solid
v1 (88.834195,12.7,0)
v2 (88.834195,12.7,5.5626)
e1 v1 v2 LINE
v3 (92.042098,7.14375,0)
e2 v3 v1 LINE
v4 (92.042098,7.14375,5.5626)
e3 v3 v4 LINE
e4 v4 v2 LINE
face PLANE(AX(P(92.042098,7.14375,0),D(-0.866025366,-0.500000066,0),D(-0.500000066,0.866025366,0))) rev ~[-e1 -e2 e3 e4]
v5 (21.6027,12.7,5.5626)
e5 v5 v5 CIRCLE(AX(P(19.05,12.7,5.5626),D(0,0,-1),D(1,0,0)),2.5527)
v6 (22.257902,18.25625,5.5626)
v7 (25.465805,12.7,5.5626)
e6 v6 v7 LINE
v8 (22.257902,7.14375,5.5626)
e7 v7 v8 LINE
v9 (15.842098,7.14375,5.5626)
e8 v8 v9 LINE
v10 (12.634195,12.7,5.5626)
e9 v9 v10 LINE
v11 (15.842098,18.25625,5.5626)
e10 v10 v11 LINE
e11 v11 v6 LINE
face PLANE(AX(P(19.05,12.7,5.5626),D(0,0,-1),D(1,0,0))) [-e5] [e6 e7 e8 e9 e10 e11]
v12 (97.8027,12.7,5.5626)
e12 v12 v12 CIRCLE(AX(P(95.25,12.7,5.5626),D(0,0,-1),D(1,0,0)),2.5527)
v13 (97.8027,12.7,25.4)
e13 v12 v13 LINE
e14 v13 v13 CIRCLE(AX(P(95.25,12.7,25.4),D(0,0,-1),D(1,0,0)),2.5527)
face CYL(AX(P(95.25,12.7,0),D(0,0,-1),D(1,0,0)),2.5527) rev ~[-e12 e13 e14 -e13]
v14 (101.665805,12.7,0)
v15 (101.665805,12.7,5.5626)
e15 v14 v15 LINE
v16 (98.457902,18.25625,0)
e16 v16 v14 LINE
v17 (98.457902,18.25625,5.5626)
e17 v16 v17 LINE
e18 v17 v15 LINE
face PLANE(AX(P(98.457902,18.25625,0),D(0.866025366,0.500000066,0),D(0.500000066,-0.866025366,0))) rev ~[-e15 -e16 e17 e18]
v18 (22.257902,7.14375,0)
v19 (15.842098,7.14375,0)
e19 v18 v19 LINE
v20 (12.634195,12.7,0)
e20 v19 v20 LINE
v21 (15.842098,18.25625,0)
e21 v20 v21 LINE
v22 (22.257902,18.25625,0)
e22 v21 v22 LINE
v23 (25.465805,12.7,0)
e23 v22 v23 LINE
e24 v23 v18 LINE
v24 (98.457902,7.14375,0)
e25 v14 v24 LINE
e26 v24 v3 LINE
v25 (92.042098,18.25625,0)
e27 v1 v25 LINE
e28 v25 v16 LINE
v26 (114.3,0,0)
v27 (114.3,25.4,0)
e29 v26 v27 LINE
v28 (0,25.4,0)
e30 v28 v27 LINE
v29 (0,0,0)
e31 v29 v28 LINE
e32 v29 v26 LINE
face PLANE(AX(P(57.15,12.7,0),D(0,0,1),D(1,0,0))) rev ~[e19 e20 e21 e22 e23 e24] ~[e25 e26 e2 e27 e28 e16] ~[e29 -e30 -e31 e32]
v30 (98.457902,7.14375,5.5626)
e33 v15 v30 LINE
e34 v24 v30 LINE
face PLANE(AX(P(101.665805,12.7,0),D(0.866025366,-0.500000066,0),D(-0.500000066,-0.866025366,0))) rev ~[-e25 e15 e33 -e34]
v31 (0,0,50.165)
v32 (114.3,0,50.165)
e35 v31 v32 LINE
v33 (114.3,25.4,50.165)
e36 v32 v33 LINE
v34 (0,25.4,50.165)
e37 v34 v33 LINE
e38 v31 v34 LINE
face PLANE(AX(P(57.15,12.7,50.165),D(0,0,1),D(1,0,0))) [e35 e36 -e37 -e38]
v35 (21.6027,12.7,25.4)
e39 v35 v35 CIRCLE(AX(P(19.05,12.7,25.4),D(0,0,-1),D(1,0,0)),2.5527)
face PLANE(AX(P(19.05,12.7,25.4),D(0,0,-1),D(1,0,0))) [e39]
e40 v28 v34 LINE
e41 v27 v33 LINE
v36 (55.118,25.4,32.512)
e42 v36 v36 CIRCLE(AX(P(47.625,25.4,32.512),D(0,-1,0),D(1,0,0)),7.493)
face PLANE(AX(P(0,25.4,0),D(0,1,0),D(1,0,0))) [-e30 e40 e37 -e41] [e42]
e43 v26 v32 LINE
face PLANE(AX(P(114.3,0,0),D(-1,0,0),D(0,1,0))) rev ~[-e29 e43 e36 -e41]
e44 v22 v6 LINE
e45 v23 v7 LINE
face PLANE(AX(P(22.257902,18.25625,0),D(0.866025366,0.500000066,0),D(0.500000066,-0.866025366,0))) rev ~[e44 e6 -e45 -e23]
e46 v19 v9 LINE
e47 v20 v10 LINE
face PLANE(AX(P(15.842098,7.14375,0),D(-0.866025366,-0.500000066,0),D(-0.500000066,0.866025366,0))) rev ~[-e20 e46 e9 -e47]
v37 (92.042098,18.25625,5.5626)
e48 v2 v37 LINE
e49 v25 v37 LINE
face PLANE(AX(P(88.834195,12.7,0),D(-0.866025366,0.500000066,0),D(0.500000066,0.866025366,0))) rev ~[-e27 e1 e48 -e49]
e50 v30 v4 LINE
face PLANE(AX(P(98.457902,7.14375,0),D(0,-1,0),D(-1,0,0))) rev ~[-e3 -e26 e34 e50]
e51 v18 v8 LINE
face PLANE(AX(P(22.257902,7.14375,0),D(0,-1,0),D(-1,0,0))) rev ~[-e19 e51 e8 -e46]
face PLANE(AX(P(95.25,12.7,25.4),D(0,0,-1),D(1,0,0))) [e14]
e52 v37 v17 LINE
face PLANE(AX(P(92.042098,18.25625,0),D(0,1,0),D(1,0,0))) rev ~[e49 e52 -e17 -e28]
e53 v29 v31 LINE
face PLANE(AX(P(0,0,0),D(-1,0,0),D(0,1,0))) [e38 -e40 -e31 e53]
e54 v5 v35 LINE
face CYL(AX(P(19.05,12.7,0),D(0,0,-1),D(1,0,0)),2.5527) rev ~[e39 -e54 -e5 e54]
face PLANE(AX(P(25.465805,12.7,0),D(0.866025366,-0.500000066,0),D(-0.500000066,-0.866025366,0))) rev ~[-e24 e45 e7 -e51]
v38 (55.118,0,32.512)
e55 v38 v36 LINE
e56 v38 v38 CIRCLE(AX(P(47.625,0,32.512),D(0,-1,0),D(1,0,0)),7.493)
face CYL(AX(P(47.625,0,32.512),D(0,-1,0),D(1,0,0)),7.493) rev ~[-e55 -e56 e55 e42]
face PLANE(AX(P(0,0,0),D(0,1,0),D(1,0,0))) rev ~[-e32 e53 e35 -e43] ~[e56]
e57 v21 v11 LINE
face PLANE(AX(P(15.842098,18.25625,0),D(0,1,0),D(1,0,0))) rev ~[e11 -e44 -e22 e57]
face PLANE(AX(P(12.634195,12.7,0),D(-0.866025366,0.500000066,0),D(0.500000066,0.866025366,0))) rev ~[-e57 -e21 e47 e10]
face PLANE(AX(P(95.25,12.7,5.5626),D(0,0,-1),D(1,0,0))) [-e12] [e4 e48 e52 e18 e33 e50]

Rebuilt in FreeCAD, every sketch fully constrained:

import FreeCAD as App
import Part
import Sketcher
from FreeCAD import Vector
Q = App.Units.Quantity


def add_polygon(sketch, points):
    """Adds a closed chain of lines whose ends are joined by coincident constraints."""
    first, n = sketch.GeometryCount, len(points)
    for a, b in zip(points, points[1:] + points[:1]):
        sketch.addGeometry(Part.LineSegment(App.Vector(*a, 0), App.Vector(*b, 0)), False)
    for i in range(n):
        sketch.addConstraint(Sketcher.Constraint("Coincident", first + i, 2, first + (i + 1) % n, 1))

doc = App.newDocument("Part")
body = doc.addObject("PartDesign::Body", "Body")

# Sketch on XY plane
sketch1 = doc.addObject("Sketcher::SketchObject", "Sketch")
body.addObject(sketch1)
sketch1.AttachmentSupport = (doc.XY_Plane, [""])
sketch1.MapMode = "FlatFace"
add_polygon(sketch1, [(0, 25), (0, 0), (114, 0), (114, 25)])  # lines 0-3
sketch1.addConstraint([
    Sketcher.Constraint("Vertical", 0),
    Sketcher.Constraint("Horizontal", 1),
    Sketcher.Constraint("Vertical", 2),
    Sketcher.Constraint("Horizontal", 3),
    Sketcher.Constraint("Coincident", 0, 2, -1, 1),
    Sketcher.Constraint("DistanceY", 0, 2, 0, 1, Q("1 in")),
    Sketcher.Constraint("DistanceX", 1, 1, 1, 2, Q("4.5 in")),
])
pad1 = doc.addObject("PartDesign::Pad", "Pad")
body.addObject(pad1)
pad1.Profile = sketch1
pad1.Length = Q("1.975 in")

# Sketch on XZ plane
sketch2 = doc.addObject("Sketcher::SketchObject", "Sketch001")
body.addObject(sketch2)
sketch2.AttachmentSupport = (doc.XZ_Plane, [""])
sketch2.MapMode = "FlatFace"
sketch2.addGeometry(Part.Circle(Vector(48, 33, 0), Vector(0, 0, 1), 7), False)
sketch2.addConstraint([
    Sketcher.Constraint("Diameter", 0, Q("0.59 in")),
    Sketcher.Constraint("DistanceY", -1, 1, 0, 3, Q("1.28 in")),
    Sketcher.Constraint("DistanceX", -1, 1, 0, 3, Q("1.875 in")),
])
pocket1 = doc.addObject("PartDesign::Pocket", "Pocket")
body.addObject(pocket1)
pocket1.Profile = sketch2
pocket1.Length = Q("1 in")

# Sketch on XY plane
sketch3 = doc.addObject("Sketcher::SketchObject", "Sketch002")
body.addObject(sketch3)
sketch3.AttachmentSupport = (doc.XY_Plane, [""])
sketch3.MapMode = "FlatFace"
sketch3.addGeometry([
    Part.Circle(Vector(19.1, 12.7, 0), Vector(0, 0, 1), 2.6),
    Part.Circle(Vector(95.2, 12.7, 0), Vector(0, 0, 1), 2.6),
], False)
sketch3.addConstraint([
    Sketcher.Constraint("Equal", 0, 1),
    Sketcher.Constraint("Horizontal", 0, 3, 1, 3),
    Sketcher.Constraint("Diameter", 0, Q("0.201 in")),
    Sketcher.Constraint("DistanceX", 0, 3, 1, 3, Q("3 in")),
    Sketcher.Constraint("DistanceY", -1, 1, 0, 3, Q("0.5 in")),
    Sketcher.Constraint("DistanceX", -1, 1, 0, 3, Q("0.75 in")),
])
pocket2 = doc.addObject("PartDesign::Pocket", "Pocket001")
body.addObject(pocket2)
pocket2.Profile = sketch3
pocket2.Length = Q("1 in")
pocket2.Reversed = True

# Sketch on XY plane
sketch4 = doc.addObject("Sketcher::SketchObject", "Sketch003")
body.addObject(sketch4)
sketch4.AttachmentSupport = (doc.XY_Plane, [""])
sketch4.MapMode = "FlatFace"
add_polygon(sketch4, [(13, 13), (16, 18), (22, 18), (25, 13), (22, 7), (16, 7)])  # lines 0-5
add_polygon(sketch4, [(89, 13), (92, 18), (98, 18), (102, 13), (98, 7), (92, 7)])  # lines 6-11
sketch4.addConstraint([
    Sketcher.Constraint("Horizontal", 1),
    Sketcher.Constraint("Horizontal", 4),
    Sketcher.Constraint("Horizontal", 7),
    Sketcher.Constraint("Horizontal", 10),
    Sketcher.Constraint("Parallel", 0, 3),
    Sketcher.Constraint("Parallel", 2, 5),
    Sketcher.Constraint("Parallel", 3, 6),
    Sketcher.Constraint("Parallel", 5, 8),
    Sketcher.Constraint("Parallel", 6, 9),
    Sketcher.Constraint("Parallel", 8, 11),
    Sketcher.Constraint("Horizontal", 2, 2, 5, 2),
    Sketcher.Constraint("Horizontal", 1, 2, 6, 2),
    Sketcher.Constraint("Horizontal", 5, 2, 8, 2),
    Sketcher.Constraint("Horizontal", 4, 2, 9, 2),
    Sketcher.Constraint("Horizontal", 8, 2, 11, 2),
    Sketcher.Constraint("Vertical", 1, 2, 3, 2),
    Sketcher.Constraint("Vertical", 0, 2, 4, 2),
    Sketcher.Constraint("Equal", 4, 7),
    Sketcher.Constraint("Angle", 0, Q("59.999996 deg")),
    Sketcher.Constraint("DistanceX", 0, 2, 6, 2, Q("3 in")),
    Sketcher.Constraint("DistanceY", -1, 1, 2, 2, Q("0.5 in")),
    Sketcher.Constraint("DistanceY", -1, 1, 0, 2, Q("0.71875 in")),
    Sketcher.Constraint("DistanceX", 1, 1, 1, 2, Q("6.415804 mm")),
    Sketcher.Constraint("DistanceX", -1, 1, 0, 2, Q("15.842098 mm")),
])
pocket3 = doc.addObject("PartDesign::Pocket", "Pocket002")
body.addObject(pocket3)
pocket3.Profile = sketch4
pocket3.Length = Q("0.219 in")
pocket3.Reversed = True

doc.recompute()
